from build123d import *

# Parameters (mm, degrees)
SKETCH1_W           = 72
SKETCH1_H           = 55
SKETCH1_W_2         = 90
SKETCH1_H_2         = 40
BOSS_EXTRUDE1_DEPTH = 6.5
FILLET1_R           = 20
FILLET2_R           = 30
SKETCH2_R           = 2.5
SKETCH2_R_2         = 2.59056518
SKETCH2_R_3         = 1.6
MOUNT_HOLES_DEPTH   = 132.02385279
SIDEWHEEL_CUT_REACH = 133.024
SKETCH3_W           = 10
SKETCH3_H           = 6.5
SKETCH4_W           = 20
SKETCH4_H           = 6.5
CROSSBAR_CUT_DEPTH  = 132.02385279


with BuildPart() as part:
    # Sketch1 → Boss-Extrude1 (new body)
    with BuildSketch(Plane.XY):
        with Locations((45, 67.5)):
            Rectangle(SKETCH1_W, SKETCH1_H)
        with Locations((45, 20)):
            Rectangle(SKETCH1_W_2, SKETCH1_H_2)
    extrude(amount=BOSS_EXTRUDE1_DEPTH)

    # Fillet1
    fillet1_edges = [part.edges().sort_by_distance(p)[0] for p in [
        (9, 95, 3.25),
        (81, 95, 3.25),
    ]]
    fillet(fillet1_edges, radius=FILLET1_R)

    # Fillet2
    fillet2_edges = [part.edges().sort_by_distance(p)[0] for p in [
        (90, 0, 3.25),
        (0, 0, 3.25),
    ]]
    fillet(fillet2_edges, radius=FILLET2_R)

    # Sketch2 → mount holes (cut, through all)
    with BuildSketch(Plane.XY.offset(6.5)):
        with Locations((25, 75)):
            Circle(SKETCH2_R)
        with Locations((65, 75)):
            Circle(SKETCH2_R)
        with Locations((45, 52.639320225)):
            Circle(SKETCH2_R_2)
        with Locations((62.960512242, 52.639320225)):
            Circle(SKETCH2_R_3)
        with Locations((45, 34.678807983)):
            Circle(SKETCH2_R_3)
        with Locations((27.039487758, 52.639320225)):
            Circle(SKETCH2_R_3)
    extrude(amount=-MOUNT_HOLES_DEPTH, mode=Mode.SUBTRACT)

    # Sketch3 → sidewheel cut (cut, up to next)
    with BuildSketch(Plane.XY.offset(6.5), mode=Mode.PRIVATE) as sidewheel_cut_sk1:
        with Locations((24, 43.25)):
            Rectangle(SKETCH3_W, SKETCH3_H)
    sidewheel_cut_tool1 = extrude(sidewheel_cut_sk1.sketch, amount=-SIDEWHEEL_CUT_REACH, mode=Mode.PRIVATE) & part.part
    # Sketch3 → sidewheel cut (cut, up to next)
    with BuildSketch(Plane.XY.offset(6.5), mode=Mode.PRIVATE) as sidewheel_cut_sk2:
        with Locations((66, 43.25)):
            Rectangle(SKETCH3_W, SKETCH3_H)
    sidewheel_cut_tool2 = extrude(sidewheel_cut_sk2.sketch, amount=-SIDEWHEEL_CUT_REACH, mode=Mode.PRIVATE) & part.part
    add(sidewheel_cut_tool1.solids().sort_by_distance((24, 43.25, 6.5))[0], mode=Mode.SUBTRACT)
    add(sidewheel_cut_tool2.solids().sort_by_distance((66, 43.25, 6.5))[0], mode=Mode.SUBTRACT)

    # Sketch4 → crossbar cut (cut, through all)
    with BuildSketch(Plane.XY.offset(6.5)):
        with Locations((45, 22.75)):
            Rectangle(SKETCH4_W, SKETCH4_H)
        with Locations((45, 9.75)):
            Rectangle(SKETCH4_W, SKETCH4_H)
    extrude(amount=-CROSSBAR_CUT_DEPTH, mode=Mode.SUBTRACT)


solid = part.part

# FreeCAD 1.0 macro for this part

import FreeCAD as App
import Part
import Sketcher
Q = App.Units.Quantity


def edges_at(feature, points):
    """Names of the edges that pass closest to the given points."""
    edges = feature.Shape.Edges
    near = lambda p: min(range(len(edges)), key=lambda i: edges[i].distToShape(Part.Vertex(*p))[0])
    return sorted({f"Edge{near(p) + 1}" for p in points})


def add_polygon(sketch, points):
    """Adds a closed chain of lines whose ends are joined by coincident constraints."""
    first, n = sketch.GeometryCount, len(points)
    for a, b in zip(points, points[1:] + points[:1]):
        sketch.addGeometry(Part.LineSegment(App.Vector(*a, 0), App.Vector(*b, 0)), False)
    for i in range(n):
        sketch.addConstraint(Sketcher.Constraint("Coincident", first + i, 2, first + (i + 1) % n, 1))

doc = App.newDocument("Part")
body = doc.addObject("PartDesign::Body", "Body")

sketch1 = doc.addObject("Sketcher::SketchObject", "Sketch")
body.addObject(sketch1)
sketch1.AttachmentSupport = (doc.XY_Plane, [""])
sketch1.MapMode = "FlatFace"
add_polygon(sketch1, [(9, 95), (9, 40), (0, 40), (0, 0), (90, 0), (90, 40), (81, 40), (81, 95)])
sketch1.addConstraint(Sketcher.Constraint("Vertical", 0))
sketch1.addConstraint(Sketcher.Constraint("Horizontal", 1))
sketch1.addConstraint(Sketcher.Constraint("Vertical", 2))
sketch1.addConstraint(Sketcher.Constraint("Horizontal", 3))
sketch1.addConstraint(Sketcher.Constraint("Vertical", 4))
sketch1.addConstraint(Sketcher.Constraint("Horizontal", 5))
sketch1.addConstraint(Sketcher.Constraint("Vertical", 6))
sketch1.addConstraint(Sketcher.Constraint("Horizontal", 7))
sketch1.addConstraint(Sketcher.Constraint("Coincident", 2, 2, -1, 1))
sketch1.addConstraint(Sketcher.Constraint("Horizontal", 1, 2, 4, 2))
sketch1.addConstraint(Sketcher.Constraint("Equal", 1, 5))
sketch1.addConstraint(Sketcher.Constraint("DistanceX", 1, 2, 1, 1, Q("9 mm")))
sketch1.addConstraint(Sketcher.Constraint("DistanceX", 3, 1, 3, 2, Q("90 mm")))
sketch1.addConstraint(Sketcher.Constraint("DistanceY", 0, 2, 0, 1, Q("55 mm")))
sketch1.addConstraint(Sketcher.Constraint("DistanceY", 2, 2, 2, 1, Q("40 mm")))
pad1 = doc.addObject("PartDesign::Pad", "Pad")
body.addObject(pad1)
pad1.Profile = sketch1
pad1.Length = 6.5
doc.recompute()

fillet = doc.addObject("PartDesign::Fillet", "Fillet")
body.addObject(fillet)
fillet.Base = (pad1, edges_at(pad1, [(9, 95, 3.25), (81, 95, 3.25)]))
fillet.Radius = 20
doc.recompute()

fillet2 = doc.addObject("PartDesign::Fillet", "Fillet001")
body.addObject(fillet2)
fillet2.Base = (fillet, edges_at(fillet, [(90, 0, 3.25), (0, 0, 3.25)]))
fillet2.Radius = 30

sketch2 = doc.addObject("Sketcher::SketchObject", "Sketch001")
body.addObject(sketch2)
sketch2.AttachmentSupport = (doc.XY_Plane, [""])
sketch2.MapMode = "FlatFace"
sketch2.AttachmentOffset = App.Placement(App.Vector(0, 0, 6.5), App.Rotation())
sketch2.addGeometry(Part.Circle(App.Vector(25, 75, 0), App.Vector(0, 0, 1), 2.5), False)
sketch2.addGeometry(Part.Circle(App.Vector(65, 75, 0), App.Vector(0, 0, 1), 2.5), False)
sketch2.addGeometry(Part.Circle(App.Vector(45, 52.6, 0), App.Vector(0, 0, 1), 2.6), False)
sketch2.addGeometry(Part.Circle(App.Vector(63, 52.6, 0), App.Vector(0, 0, 1), 1.6), False)
sketch2.addGeometry(Part.Circle(App.Vector(45, 34.7, 0), App.Vector(0, 0, 1), 1.6), False)
sketch2.addGeometry(Part.Circle(App.Vector(27, 52.6, 0), App.Vector(0, 0, 1), 1.6), False)
sketch2.addConstraint(Sketcher.Constraint("Equal", 0, 1))
sketch2.addConstraint(Sketcher.Constraint("Equal", 3, 4))
sketch2.addConstraint(Sketcher.Constraint("Equal", 4, 5))
sketch2.addConstraint(Sketcher.Constraint("Horizontal", 0, 3, 1, 3))
sketch2.addConstraint(Sketcher.Constraint("Horizontal", 2, 3, 3, 3))
sketch2.addConstraint(Sketcher.Constraint("Horizontal", 3, 3, 5, 3))
sketch2.addConstraint(Sketcher.Constraint("Vertical", 2, 3, 4, 3))
sketch2.addConstraint(Sketcher.Constraint("Diameter", 0, Q("5 mm")))
sketch2.addConstraint(Sketcher.Constraint("Diameter", 3, Q("3.2 mm")))
sketch2.addConstraint(Sketcher.Constraint("DistanceX", -1, 1, 0, 3, Q("25 mm")))
sketch2.addConstraint(Sketcher.Constraint("DistanceY", -1, 1, 0, 3, Q("75 mm")))
sketch2.addConstraint(Sketcher.Constraint("DistanceX", -1, 1, 1, 3, Q("65 mm")))
sketch2.addConstraint(Sketcher.Constraint("DistanceX", -1, 1, 2, 3, Q("45 mm")))
sketch2.addConstraint(Sketcher.Constraint("Diameter", 2, Q("5.18113 mm")))
sketch2.addConstraint(Sketcher.Constraint("DistanceY", -1, 1, 2, 3, Q("52.63932 mm")))
sketch2.addConstraint(Sketcher.Constraint("DistanceX", -1, 1, 3, 3, Q("62.960512 mm")))
sketch2.addConstraint(Sketcher.Constraint("DistanceY", -1, 1, 4, 3, Q("34.678808 mm")))
sketch2.addConstraint(Sketcher.Constraint("DistanceX", -1, 1, 5, 3, Q("27.039488 mm")))
pocket1 = doc.addObject("PartDesign::Pocket", "Pocket")
body.addObject(pocket1)
pocket1.Profile = sketch2
pocket1.Type = "ThroughAll"

sketch3 = doc.addObject("Sketcher::SketchObject", "Sketch002")
body.addObject(sketch3)
sketch3.AttachmentSupport = (doc.XY_Plane, [""])
sketch3.MapMode = "FlatFace"
sketch3.AttachmentOffset = App.Placement(App.Vector(0, 0, 6.5), App.Rotation())
add_polygon(sketch3, [(19, 46), (19, 40), (29, 40), (29, 46)])
sketch3.addConstraint(Sketcher.Constraint("Vertical", 0))
sketch3.addConstraint(Sketcher.Constraint("Horizontal", 1))
sketch3.addConstraint(Sketcher.Constraint("Vertical", 2))
sketch3.addConstraint(Sketcher.Constraint("Horizontal", 3))
sketch3.addConstraint(Sketcher.Constraint("DistanceX", 1, 1, 1, 2, Q("10 mm")))
sketch3.addConstraint(Sketcher.Constraint("DistanceY", 0, 2, 0, 1, Q("6.5 mm")))
sketch3.addConstraint(Sketcher.Constraint("DistanceX", -1, 1, 0, 2, Q("19 mm")))
sketch3.addConstraint(Sketcher.Constraint("DistanceY", -1, 1, 0, 2, Q("40 mm")))
pocket2 = doc.addObject("PartDesign::Pocket", "Pocket001")
body.addObject(pocket2)
pocket2.Profile = sketch3
pocket2.Type = "UpToFirst"

sketch4 = doc.addObject("Sketcher::SketchObject", "Sketch003")
body.addObject(sketch4)
sketch4.AttachmentSupport = (doc.XY_Plane, [""])
sketch4.MapMode = "FlatFace"
sketch4.AttachmentOffset = App.Placement(App.Vector(0, 0, 6.5), App.Rotation())
add_polygon(sketch4, [(61, 46), (61, 40), (71, 40), (71, 46)])
sketch4.addConstraint(Sketcher.Constraint("Vertical", 0))
sketch4.addConstraint(Sketcher.Constraint("Horizontal", 1))
sketch4.addConstraint(Sketcher.Constraint("Vertical", 2))
sketch4.addConstraint(Sketcher.Constraint("Horizontal", 3))
sketch4.addConstraint(Sketcher.Constraint("DistanceX", 1, 1, 1, 2, Q("10 mm")))
sketch4.addConstraint(Sketcher.Constraint("DistanceY", 0, 2, 0, 1, Q("6.5 mm")))
sketch4.addConstraint(Sketcher.Constraint("DistanceX", -1, 1, 0, 2, Q("61 mm")))
sketch4.addConstraint(Sketcher.Constraint("DistanceY", -1, 1, 0, 2, Q("40 mm")))
pocket3 = doc.addObject("PartDesign::Pocket", "Pocket002")
body.addObject(pocket3)
pocket3.Profile = sketch4
pocket3.Type = "UpToFirst"

sketch5 = doc.addObject("Sketcher::SketchObject", "Sketch004")
body.addObject(sketch5)
sketch5.AttachmentSupport = (doc.XY_Plane, [""])
sketch5.MapMode = "FlatFace"
sketch5.AttachmentOffset = App.Placement(App.Vector(0, 0, 6.5), App.Rotation())
add_polygon(sketch5, [(35, 26), (35, 20), (55, 20), (55, 26)])
add_polygon(sketch5, [(35, 13), (35, 6), (55, 6), (55, 13)])
sketch5.addConstraint(Sketcher.Constraint("Vertical", 0))
sketch5.addConstraint(Sketcher.Constraint("Horizontal", 1))
sketch5.addConstraint(Sketcher.Constraint("Vertical", 2))
sketch5.addConstraint(Sketcher.Constraint("Horizontal", 3))
sketch5.addConstraint(Sketcher.Constraint("Vertical", 4))
sketch5.addConstraint(Sketcher.Constraint("Horizontal", 5))
sketch5.addConstraint(Sketcher.Constraint("Vertical", 6))
sketch5.addConstraint(Sketcher.Constraint("Horizontal", 7))
sketch5.addConstraint(Sketcher.Constraint("Vertical", 3, 2, 4, 2))
sketch5.addConstraint(Sketcher.Constraint("Vertical", 2, 2, 5, 2))
sketch5.addConstraint(Sketcher.Constraint("Equal", 2, 4))
sketch5.addConstraint(Sketcher.Constraint("DistanceX", 1, 1, 1, 2, Q("20 mm")))
sketch5.addConstraint(Sketcher.Constraint("DistanceY", 0, 2, 0, 1, Q("6.5 mm")))
sketch5.addConstraint(Sketcher.Constraint("DistanceX", -1, 1, 0, 2, Q("35 mm")))
sketch5.addConstraint(Sketcher.Constraint("DistanceY", -1, 1, 2, 2, Q("26 mm")))
sketch5.addConstraint(Sketcher.Constraint("DistanceY", -1, 1, 6, 2, Q("13 mm")))
pocket4 = doc.addObject("PartDesign::Pocket", "Pocket003")
body.addObject(pocket4)
pocket4.Profile = sketch5
pocket4.Type = "ThroughAll"

doc.recompute()
